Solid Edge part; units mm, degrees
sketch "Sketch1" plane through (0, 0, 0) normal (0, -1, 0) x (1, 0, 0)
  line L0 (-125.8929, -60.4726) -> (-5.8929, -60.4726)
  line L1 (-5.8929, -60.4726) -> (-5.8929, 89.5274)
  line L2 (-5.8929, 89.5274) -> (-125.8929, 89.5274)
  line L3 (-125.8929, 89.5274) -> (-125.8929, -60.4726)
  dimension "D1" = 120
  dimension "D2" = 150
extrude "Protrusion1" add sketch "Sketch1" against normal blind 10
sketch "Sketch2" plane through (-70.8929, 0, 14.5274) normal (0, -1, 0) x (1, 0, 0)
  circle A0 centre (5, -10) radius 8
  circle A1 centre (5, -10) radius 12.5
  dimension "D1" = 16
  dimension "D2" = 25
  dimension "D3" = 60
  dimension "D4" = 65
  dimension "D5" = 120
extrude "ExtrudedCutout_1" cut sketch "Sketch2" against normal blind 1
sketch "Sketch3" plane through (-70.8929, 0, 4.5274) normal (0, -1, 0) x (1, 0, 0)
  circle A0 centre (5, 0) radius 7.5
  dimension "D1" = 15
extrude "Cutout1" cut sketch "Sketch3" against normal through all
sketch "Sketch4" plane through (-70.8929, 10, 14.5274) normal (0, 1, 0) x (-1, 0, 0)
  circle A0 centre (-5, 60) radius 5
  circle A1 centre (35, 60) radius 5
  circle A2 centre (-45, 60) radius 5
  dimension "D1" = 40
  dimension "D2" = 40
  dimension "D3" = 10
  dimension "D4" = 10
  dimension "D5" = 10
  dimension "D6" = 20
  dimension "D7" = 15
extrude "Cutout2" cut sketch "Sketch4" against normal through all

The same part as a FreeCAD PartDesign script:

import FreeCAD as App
import Part
import Sketcher
from FreeCAD import Vector

doc = App.newDocument("Part")
params = doc.addObject("Spreadsheet::Sheet", "Params")
for row, (alias, value) in enumerate([
    ("sketch1_width", "120 mm"),
    ("sketch1_height", "150 mm"),
    ("pad1_length", "10 mm"),
    ("sketch2_diameter", "25 mm"),
    ("sketch2_diameter2", "16 mm"),
    ("pocket1_length", "1 mm"),
    ("sketch3_diameter", "15 mm"),
    ("sketch4_diameter", "10 mm"),
], start=1):
    params.set(f"A{row}", alias)
    params.set(f"B{row}", "=" + value)
    params.setAlias(f"B{row}", alias)

body = doc.addObject("PartDesign::Body", "Body")

# Sketch on XZ plane
sketch1 = body.newObject("Sketcher::SketchObject", "Sketch")
sketch1.AttachmentSupport = (doc.getObject("XZ_Plane"), [""])
sketch1.MapMode = "FlatFace"
sketch1.addGeometry([
    Part.LineSegment(Vector(-125.8929, 89.5274, 0), Vector(-125.8929, -60.4726, 0)),
    Part.LineSegment(Vector(-125.8929, -60.4726, 0), Vector(-5.8929, -60.4726, 0)),
    Part.LineSegment(Vector(-5.8929, -60.4726, 0), Vector(-5.8929, 89.5274, 0)),
    Part.LineSegment(Vector(-5.8929, 89.5274, 0), Vector(-125.8929, 89.5274, 0)),
], False)
sketch1.addConstraint([
    Sketcher.Constraint("Coincident", 0, 2, 1, 1),
    Sketcher.Constraint("Coincident", 1, 2, 2, 1),
    Sketcher.Constraint("Coincident", 2, 2, 3, 1),
    Sketcher.Constraint("Coincident", 3, 2, 0, 1),
    Sketcher.Constraint("Vertical", 0),
    Sketcher.Constraint("Horizontal", 1),
    Sketcher.Constraint("Vertical", 2),
    Sketcher.Constraint("Horizontal", 3),
    Sketcher.Constraint("DistanceX", 1, 1, 1, 2, 120.0),
    Sketcher.Constraint("DistanceY", 0, 2, 0, 1, 150.0),
    Sketcher.Constraint("DistanceX", 0, 2, -1, 1, 125.893),
    Sketcher.Constraint("DistanceY", 0, 2, -1, 1, 60.4726),
])
sketch1.setExpression("Constraints[8]", "Params.sketch1_width")
sketch1.setExpression("Constraints[9]", "Params.sketch1_height")
pad1 = body.newObject("PartDesign::Pad", "Pad")
pad1.Profile = sketch1
pad1.setExpression("Length", "Params.pad1_length")
pad1.Reversed = True

# Sketch on XZ plane
sketch2 = body.newObject("Sketcher::SketchObject", "Sketch001")
sketch2.AttachmentSupport = (doc.getObject("XZ_Plane"), [""])
sketch2.MapMode = "FlatFace"
sketch2.addGeometry([
    Part.Circle(Vector(-65.8929, 4.5274, 0), Vector(0, 0, 1), 12.5),
    Part.Circle(Vector(-65.8929, 4.5274, 0), Vector(0, 0, 1), 8),
], False)
sketch2.addConstraint([
    Sketcher.Constraint("Coincident", 1, 3, 0, 3),
    Sketcher.Constraint("Diameter", 0, 25.0),
    Sketcher.Constraint("Diameter", 1, 16.0),
    Sketcher.Constraint("DistanceX", 0, 3, -1, 1, 65.893),
    Sketcher.Constraint("DistanceY", -1, 1, 0, 3, 4.5274),
])
sketch2.setExpression("Constraints[1]", "Params.sketch2_diameter")
sketch2.setExpression("Constraints[2]", "Params.sketch2_diameter2")
pocket1 = body.newObject("PartDesign::Pocket", "Pocket")
pocket1.Profile = sketch2
pocket1.setExpression("Length", "Params.pocket1_length")

# Sketch on XZ plane
sketch3 = body.newObject("Sketcher::SketchObject", "Sketch002")
sketch3.AttachmentSupport = (doc.getObject("XZ_Plane"), [""])
sketch3.MapMode = "FlatFace"
sketch3.addGeometry(Part.Circle(Vector(-65.8929, 4.5274, 0), Vector(0, 0, 1), 7.5), False)
sketch3.addConstraint([
    Sketcher.Constraint("Diameter", 0, 15.0),
    Sketcher.Constraint("DistanceX", 0, 3, -1, 1, 65.893),
    Sketcher.Constraint("DistanceY", -1, 1, 0, 3, 4.5274),
])
sketch3.setExpression("Constraints[0]", "Params.sketch3_diameter")
pocket2 = body.newObject("PartDesign::Pocket", "Pocket001")
pocket2.Profile = sketch3
pocket2.Type = "ThroughAll"

# Sketch on XZ plane
sketch4 = body.newObject("Sketcher::SketchObject", "Sketch003")
sketch4.AttachmentSupport = (doc.getObject("XZ_Plane"), [""])
sketch4.MapMode = "FlatFace"
sketch4.AttachmentOffset = App.Placement(Vector(0, 0, -10), App.Rotation())
sketch4.addGeometry([
    Part.Circle(Vector(-65.8929, 74.5274, 0), Vector(0, 0, 1), 5),
    Part.Circle(Vector(-105.8929, 74.5274, 0), Vector(0, 0, 1), 5),
    Part.Circle(Vector(-25.8929, 74.5274, 0), Vector(0, 0, 1), 5),
], False)
sketch4.addConstraint([
    Sketcher.Constraint("Equal", 0, 1),
    Sketcher.Constraint("Equal", 1, 2),
    Sketcher.Constraint("Horizontal", 0, 3, 1, 3),
    Sketcher.Constraint("Horizontal", 1, 3, 2, 3),
    Sketcher.Constraint("Diameter", 0, 10.0),
    Sketcher.Constraint("DistanceX", 1, 3, 0, 3, 40.0),
    Sketcher.Constraint("DistanceX", 0, 3, 2, 3, 40.0),
    Sketcher.Constraint("DistanceX", 0, 3, -1, 1, 65.893),
    Sketcher.Constraint("DistanceY", -1, 1, 0, 3, 74.5274),
])
sketch4.setExpression("Constraints[4]", "Params.sketch4_diameter")
pocket3 = body.newObject("PartDesign::Pocket", "Pocket002")
pocket3.Profile = sketch4
pocket3.Type = "ThroughAll"
pocket3.Reversed = True

doc.recompute()
